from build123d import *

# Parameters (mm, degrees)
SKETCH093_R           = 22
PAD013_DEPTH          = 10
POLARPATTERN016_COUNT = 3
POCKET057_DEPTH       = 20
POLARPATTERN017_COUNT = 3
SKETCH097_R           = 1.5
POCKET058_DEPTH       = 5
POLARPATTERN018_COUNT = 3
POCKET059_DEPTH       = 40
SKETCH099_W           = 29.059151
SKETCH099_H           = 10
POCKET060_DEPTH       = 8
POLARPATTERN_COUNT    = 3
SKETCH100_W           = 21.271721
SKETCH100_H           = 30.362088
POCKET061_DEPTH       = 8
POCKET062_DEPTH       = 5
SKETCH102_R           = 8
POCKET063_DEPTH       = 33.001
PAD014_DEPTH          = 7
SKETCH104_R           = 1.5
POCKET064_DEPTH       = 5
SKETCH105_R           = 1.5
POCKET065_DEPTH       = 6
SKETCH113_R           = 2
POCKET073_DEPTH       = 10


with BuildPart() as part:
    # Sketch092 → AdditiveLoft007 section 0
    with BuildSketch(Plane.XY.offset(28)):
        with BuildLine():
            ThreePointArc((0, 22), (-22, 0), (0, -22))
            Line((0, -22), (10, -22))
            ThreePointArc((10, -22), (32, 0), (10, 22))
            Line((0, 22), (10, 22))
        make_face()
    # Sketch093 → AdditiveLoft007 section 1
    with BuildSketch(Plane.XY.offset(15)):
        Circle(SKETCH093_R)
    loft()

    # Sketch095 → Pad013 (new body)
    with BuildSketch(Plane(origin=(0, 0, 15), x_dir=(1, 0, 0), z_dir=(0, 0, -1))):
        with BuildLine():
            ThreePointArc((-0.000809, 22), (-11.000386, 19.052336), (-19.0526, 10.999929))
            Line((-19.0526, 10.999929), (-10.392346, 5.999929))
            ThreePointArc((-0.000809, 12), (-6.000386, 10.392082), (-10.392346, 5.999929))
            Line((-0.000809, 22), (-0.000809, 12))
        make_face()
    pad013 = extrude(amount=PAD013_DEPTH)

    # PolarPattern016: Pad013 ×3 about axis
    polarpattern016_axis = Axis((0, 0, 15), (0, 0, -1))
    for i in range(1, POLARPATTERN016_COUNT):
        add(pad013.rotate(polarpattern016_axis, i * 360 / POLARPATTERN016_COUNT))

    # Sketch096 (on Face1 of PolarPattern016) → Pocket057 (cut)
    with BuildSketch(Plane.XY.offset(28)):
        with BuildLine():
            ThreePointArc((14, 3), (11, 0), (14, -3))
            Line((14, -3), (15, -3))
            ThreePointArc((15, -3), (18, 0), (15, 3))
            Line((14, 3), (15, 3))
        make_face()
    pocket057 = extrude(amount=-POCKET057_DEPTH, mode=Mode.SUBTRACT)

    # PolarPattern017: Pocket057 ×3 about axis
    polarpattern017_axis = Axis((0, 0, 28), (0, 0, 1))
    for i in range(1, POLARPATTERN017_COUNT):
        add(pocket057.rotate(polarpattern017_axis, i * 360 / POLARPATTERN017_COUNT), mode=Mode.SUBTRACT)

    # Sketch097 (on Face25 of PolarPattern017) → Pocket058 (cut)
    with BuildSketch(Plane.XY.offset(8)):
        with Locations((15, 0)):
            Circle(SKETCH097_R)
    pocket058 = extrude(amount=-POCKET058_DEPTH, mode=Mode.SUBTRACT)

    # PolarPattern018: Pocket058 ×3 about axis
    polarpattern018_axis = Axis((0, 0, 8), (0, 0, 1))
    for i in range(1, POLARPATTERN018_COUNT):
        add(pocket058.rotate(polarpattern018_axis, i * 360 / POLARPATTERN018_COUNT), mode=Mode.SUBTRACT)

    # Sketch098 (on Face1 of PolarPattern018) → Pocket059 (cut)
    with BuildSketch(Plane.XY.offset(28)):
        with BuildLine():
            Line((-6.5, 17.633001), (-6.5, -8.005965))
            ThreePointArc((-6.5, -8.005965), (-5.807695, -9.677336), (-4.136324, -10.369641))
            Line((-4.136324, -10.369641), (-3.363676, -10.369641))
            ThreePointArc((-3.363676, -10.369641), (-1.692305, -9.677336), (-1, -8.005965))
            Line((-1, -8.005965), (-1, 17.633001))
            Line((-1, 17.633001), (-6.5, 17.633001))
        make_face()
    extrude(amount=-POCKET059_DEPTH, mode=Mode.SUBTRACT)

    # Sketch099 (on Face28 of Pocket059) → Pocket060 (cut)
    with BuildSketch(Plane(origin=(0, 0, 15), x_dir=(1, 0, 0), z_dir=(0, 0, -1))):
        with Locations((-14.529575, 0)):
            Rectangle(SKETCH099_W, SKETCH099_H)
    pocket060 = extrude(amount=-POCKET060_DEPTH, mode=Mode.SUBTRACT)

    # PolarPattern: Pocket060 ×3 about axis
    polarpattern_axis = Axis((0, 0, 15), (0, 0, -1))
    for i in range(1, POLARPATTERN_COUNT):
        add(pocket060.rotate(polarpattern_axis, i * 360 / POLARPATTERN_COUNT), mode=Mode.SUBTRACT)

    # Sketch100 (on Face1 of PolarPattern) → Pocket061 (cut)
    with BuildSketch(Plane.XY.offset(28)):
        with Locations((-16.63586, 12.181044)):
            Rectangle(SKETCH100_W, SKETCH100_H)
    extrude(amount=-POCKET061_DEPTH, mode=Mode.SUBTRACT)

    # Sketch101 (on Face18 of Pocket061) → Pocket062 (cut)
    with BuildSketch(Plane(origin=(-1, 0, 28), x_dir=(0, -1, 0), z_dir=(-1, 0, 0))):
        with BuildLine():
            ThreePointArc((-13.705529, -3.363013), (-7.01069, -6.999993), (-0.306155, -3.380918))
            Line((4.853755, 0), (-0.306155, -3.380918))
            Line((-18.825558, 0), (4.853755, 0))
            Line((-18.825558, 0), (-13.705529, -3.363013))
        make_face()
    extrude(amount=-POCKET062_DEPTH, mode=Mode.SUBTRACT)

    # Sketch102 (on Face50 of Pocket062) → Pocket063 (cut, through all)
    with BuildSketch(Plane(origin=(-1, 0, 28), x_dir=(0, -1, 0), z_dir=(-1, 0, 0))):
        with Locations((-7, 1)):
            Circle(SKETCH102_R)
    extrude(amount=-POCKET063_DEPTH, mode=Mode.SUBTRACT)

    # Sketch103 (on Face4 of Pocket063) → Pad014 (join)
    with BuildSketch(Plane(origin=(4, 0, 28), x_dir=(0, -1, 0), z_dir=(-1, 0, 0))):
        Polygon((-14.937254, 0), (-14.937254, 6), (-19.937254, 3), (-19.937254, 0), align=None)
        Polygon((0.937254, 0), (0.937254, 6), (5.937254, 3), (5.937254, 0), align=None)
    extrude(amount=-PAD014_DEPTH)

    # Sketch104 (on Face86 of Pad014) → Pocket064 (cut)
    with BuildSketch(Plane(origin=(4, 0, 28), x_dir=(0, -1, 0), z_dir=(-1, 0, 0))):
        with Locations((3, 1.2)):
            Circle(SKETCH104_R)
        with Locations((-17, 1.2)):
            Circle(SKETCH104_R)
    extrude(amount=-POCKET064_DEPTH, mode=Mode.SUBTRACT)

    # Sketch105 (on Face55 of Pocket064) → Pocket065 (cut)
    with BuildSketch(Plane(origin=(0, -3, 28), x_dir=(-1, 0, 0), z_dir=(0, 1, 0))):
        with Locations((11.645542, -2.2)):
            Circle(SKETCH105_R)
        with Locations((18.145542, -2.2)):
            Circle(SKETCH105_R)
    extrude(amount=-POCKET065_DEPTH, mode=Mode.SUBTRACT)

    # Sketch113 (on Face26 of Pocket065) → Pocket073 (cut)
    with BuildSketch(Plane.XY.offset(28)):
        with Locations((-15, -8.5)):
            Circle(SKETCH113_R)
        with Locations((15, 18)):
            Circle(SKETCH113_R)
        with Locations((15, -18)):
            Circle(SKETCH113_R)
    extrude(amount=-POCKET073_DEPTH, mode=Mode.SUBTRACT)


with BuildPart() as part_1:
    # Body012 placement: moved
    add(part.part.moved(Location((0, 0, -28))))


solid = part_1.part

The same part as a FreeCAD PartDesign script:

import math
import FreeCAD as App
import Part
import Sketcher

V = App.Vector
Q = App.Units.Quantity


def add_polygon(sketch, points):
    """Adds a closed chain of lines whose ends are joined by coincident constraints."""
    first, n = sketch.GeometryCount, len(points)
    for a, b in zip(points, points[1:] + points[:1]):
        sketch.addGeometry(Part.LineSegment(App.Vector(*a, 0), App.Vector(*b, 0)), False)
    for i in range(n):
        sketch.addConstraint(Sketcher.Constraint("Coincident", first + i, 2, first + (i + 1) % n, 1))

doc = App.newDocument("Part")
body = doc.addObject("PartDesign::Body", "Body")

# Sketch on XY plane
sketch1 = doc.addObject("Sketcher::SketchObject", "Sketch")
body.addObject(sketch1)
sketch1.AttachmentSupport = (doc.XY_Plane, [""])
sketch1.MapMode = "FlatFace"
sketch1.AttachmentOffset = App.Placement(V(0, 0, 28), App.Rotation())
sketch1.addGeometry([
    Part.ArcOfCircle(Part.Circle(V(0, 0, 0), V(0, 0, 1), 22), math.radians(90), math.radians(270)),
    Part.LineSegment(V(0, -22, 0), V(10, -22, 0)),
    Part.ArcOfCircle(Part.Circle(V(10, 0, 0), V(0, 0, 1), 22), math.radians(-90), math.radians(90)),
    Part.LineSegment(V(10, 22, 0), V(0, 22, 0)),
], False)
sketch1.addConstraint([
    Sketcher.Constraint("Tangent", 0, 2, 1, 1),
    Sketcher.Constraint("Tangent", 1, 2, 2, 1),
    Sketcher.Constraint("Tangent", 2, 2, 3, 1),
    Sketcher.Constraint("Tangent", 3, 2, 0, 1),
    Sketcher.Constraint("Horizontal", 1),
    Sketcher.Constraint("Horizontal", 3),
    Sketcher.Constraint("Coincident", 0, 3, -1, 1),
    Sketcher.Constraint("Radius", 0, Q("22 mm")),
    Sketcher.Constraint("DistanceX", 1, 1, 1, 2, Q("10 mm")),
])

# Sketch on XY plane
sketch2 = doc.addObject("Sketcher::SketchObject", "Sketch001")
body.addObject(sketch2)
sketch2.AttachmentSupport = (doc.XY_Plane, [""])
sketch2.MapMode = "FlatFace"
sketch2.AttachmentOffset = App.Placement(V(0, 0, 15), App.Rotation())
sketch2.addGeometry(Part.Circle(V(0, 0, 0), V(0, 0, 1), 22), False)
sketch2.addConstraint([
    Sketcher.Constraint("Coincident", 0, 3, -1, 1),
    Sketcher.Constraint("Diameter", 0, Q("44 mm")),
])

additiveloft = doc.addObject("PartDesign::AdditiveLoft", "AdditiveLoft")
body.addObject(additiveloft)
additiveloft.Profile = sketch1
additiveloft.Sections = [sketch2]

# Sketch on XY plane
sketch3 = doc.addObject("Sketcher::SketchObject", "Sketch002")
body.addObject(sketch3)
sketch3.AttachmentSupport = (doc.XY_Plane, [""])
sketch3.MapMode = "FlatFace"
sketch3.AttachmentOffset = App.Placement(V(0, 0, 15), App.Rotation())
sketch3.addGeometry([
    Part.ArcOfCircle(Part.Circle(V(0, 0, 0), V(0, 0, 1), 22), math.radians(-150), math.radians(-90)),
    Part.LineSegment(V(-19, -11, 0), V(-10, -6, 0)),
    Part.ArcOfCircle(Part.Circle(V(0, 0, 0), V(0, 0, 1), 12), math.radians(-150), math.radians(-90)),
    Part.LineSegment(V(0, -12, 0), V(0, -22, 0)),
], False)
sketch3.addConstraint([
    Sketcher.Constraint("Coincident", 0, 1, 1, 1),
    Sketcher.Constraint("Coincident", 1, 2, 2, 1),
    Sketcher.Constraint("Coincident", 2, 2, 3, 1),
    Sketcher.Constraint("Coincident", 3, 2, 0, 2),
    Sketcher.Constraint("Vertical", 3),
    Sketcher.Constraint("Coincident", 0, 3, -1, 1),
    Sketcher.Constraint("Coincident", 2, 3, -1, 1),
    Sketcher.Constraint("Radius", 0, Q("22.000001 mm")),
    Sketcher.Constraint("Radius", 2, Q("12.000001 mm")),
    Sketcher.Constraint("Angle", 1, Q("30 deg")),
    Sketcher.Constraint("DistanceX", 0, 1, -1, 1, Q("19.0526 mm")),
    Sketcher.Constraint("DistanceX", 2, 2, -1, 1, Q("0.000809 mm")),
])
pad1 = doc.addObject("PartDesign::Pad", "Pad")
body.addObject(pad1)
pad1.Profile = sketch3
pad1.Length = 10
pad1.Reversed = True
doc.recompute()

polarpattern = doc.addObject("PartDesign::PolarPattern", "PolarPattern")
body.addObject(polarpattern)
polarpattern.Originals = [pad1]
polarpattern.Axis = (doc.Z_Axis, [""])
polarpattern.Angle = 360
polarpattern.Occurrences = 3
body.Tip = polarpattern

# Sketch on XY plane
sketch4 = doc.addObject("Sketcher::SketchObject", "Sketch003")
body.addObject(sketch4)
sketch4.AttachmentSupport = (doc.XY_Plane, [""])
sketch4.MapMode = "FlatFace"
sketch4.AttachmentOffset = App.Placement(V(0, 0, 28), App.Rotation())
sketch4.addGeometry([
    Part.ArcOfCircle(Part.Circle(V(14, 0, 0), V(0, 0, 1), 3), math.radians(90), math.radians(270)),
    Part.LineSegment(V(14, -3, 0), V(15, -3, 0)),
    Part.ArcOfCircle(Part.Circle(V(15, 0, 0), V(0, 0, 1), 3), math.radians(-90), math.radians(90)),
    Part.LineSegment(V(15, 3, 0), V(14, 3, 0)),
], False)
sketch4.addConstraint([
    Sketcher.Constraint("Tangent", 0, 2, 1, 1),
    Sketcher.Constraint("Tangent", 1, 2, 2, 1),
    Sketcher.Constraint("Tangent", 2, 2, 3, 1),
    Sketcher.Constraint("Tangent", 3, 2, 0, 1),
    Sketcher.Constraint("Horizontal", 1),
    Sketcher.Constraint("Horizontal", 3),
    Sketcher.Constraint("PointOnObject", 0, 3, -1),
    Sketcher.Constraint("Radius", 0, Q("3 mm")),
    Sketcher.Constraint("DistanceX", 1, 1, 1, 2, Q("1 mm")),
    Sketcher.Constraint("DistanceX", -1, 1, 0, 3, Q("14 mm")),
])
pocket1 = doc.addObject("PartDesign::Pocket", "Pocket")
body.addObject(pocket1)
pocket1.Profile = sketch4
pocket1.Length = 20
doc.recompute()

polarpattern2 = doc.addObject("PartDesign::PolarPattern", "PolarPattern001")
body.addObject(polarpattern2)
polarpattern2.Originals = [pocket1]
polarpattern2.Axis = (doc.Z_Axis, [""])
polarpattern2.Angle = 360
polarpattern2.Occurrences = 3
body.Tip = polarpattern2

# Sketch on XY plane
sketch5 = doc.addObject("Sketcher::SketchObject", "Sketch004")
body.addObject(sketch5)
sketch5.AttachmentSupport = (doc.XY_Plane, [""])
sketch5.MapMode = "FlatFace"
sketch5.AttachmentOffset = App.Placement(V(0, 0, 8), App.Rotation())
sketch5.addGeometry(Part.Circle(V(15, 0, 0), V(0, 0, 1), 1.5), False)
sketch5.addConstraint([
    Sketcher.Constraint("PointOnObject", 0, 3, -1),
    Sketcher.Constraint("Diameter", 0, Q("3 mm")),
    Sketcher.Constraint("DistanceX", -1, 1, 0, 3, Q("15 mm")),
])
pocket2 = doc.addObject("PartDesign::Pocket", "Pocket001")
body.addObject(pocket2)
pocket2.Profile = sketch5
pocket2.Length = 5
doc.recompute()

polarpattern3 = doc.addObject("PartDesign::PolarPattern", "PolarPattern002")
body.addObject(polarpattern3)
polarpattern3.Originals = [pocket2]
polarpattern3.Axis = (doc.Z_Axis, [""])
polarpattern3.Angle = 360
polarpattern3.Occurrences = 3
body.Tip = polarpattern3

# Sketch on XY plane
sketch6 = doc.addObject("Sketcher::SketchObject", "Sketch005")
body.addObject(sketch6)
sketch6.AttachmentSupport = (doc.XY_Plane, [""])
sketch6.MapMode = "FlatFace"
sketch6.AttachmentOffset = App.Placement(V(0, 0, 28), App.Rotation())
sketch6.addGeometry([
    Part.LineSegment(V(-6.5, 17.6, 0), V(-6.5, -8, 0)),  # 0
    Part.ArcOfCircle(Part.Circle(V(-4.1, -8, 0), V(0, 0, 1), 2.4), math.radians(-180), math.radians(-90)),  # 1
    Part.LineSegment(V(-4.1, -10.4, 0), V(-3.4, -10.4, 0)),  # 2
    Part.ArcOfCircle(Part.Circle(V(-3.4, -8, 0), V(0, 0, 1), 2.4), math.radians(-90), math.radians(0)),  # 3
    Part.LineSegment(V(-1, -8, 0), V(-1, 17.6, 0)),  # 4
    Part.LineSegment(V(-1, 17.6, 0), V(-6.5, 17.6, 0)),  # 5
], False)
sketch6.addConstraint([
    Sketcher.Constraint("Tangent", 0, 2, 1, 1),
    Sketcher.Constraint("Tangent", 1, 2, 2, 1),
    Sketcher.Constraint("Tangent", 2, 2, 3, 1),
    Sketcher.Constraint("Tangent", 3, 2, 4, 1),
    Sketcher.Constraint("Coincident", 4, 2, 5, 1),
    Sketcher.Constraint("Coincident", 5, 2, 0, 1),
    Sketcher.Constraint("Vertical", 0),
    Sketcher.Constraint("Horizontal", 2),
    Sketcher.Constraint("Vertical", 4),
    Sketcher.Constraint("Horizontal", 5),
    Sketcher.Constraint("Equal", 1, 3),
    Sketcher.Constraint("DistanceX", 5, 2, 5, 1, Q("5.5 mm")),
    Sketcher.Constraint("DistanceX", 3, 2, -1, 1, Q("1 mm")),
    Sketcher.Constraint("DistanceY", -1, 1, 4, 2, Q("17.633001 mm")),
    Sketcher.Constraint("Radius", 1, Q("2.363677 mm")),
    Sketcher.Constraint("DistanceY", 0, 2, 0, 1, Q("25.638966 mm")),
])
pocket3 = doc.addObject("PartDesign::Pocket", "Pocket002")
body.addObject(pocket3)
pocket3.Profile = sketch6
pocket3.Length = 40

# Sketch on XY plane
sketch7 = doc.addObject("Sketcher::SketchObject", "Sketch006")
body.addObject(sketch7)
sketch7.AttachmentSupport = (doc.XY_Plane, [""])
sketch7.MapMode = "FlatFace"
sketch7.AttachmentOffset = App.Placement(V(0, 0, 15), App.Rotation())
add_polygon(sketch7, [(-29, -5), (-29, 5), (0, 5), (0, -5)])  # lines 0-3
sketch7.addConstraint([
    Sketcher.Constraint("Vertical", 0),
    Sketcher.Constraint("Horizontal", 1),
    Sketcher.Constraint("Vertical", 2),
    Sketcher.Constraint("Horizontal", 3),
    Sketcher.Constraint("Symmetric", 1, 2, 2, 2, -1, 1),
    Sketcher.Constraint("DistanceY", 0, 1, 0, 2, Q("10 mm")),
    Sketcher.Constraint("DistanceX", 1, 1, 1, 2, Q("29.059151 mm")),
])
pocket4 = doc.addObject("PartDesign::Pocket", "Pocket003")
body.addObject(pocket4)
pocket4.Profile = sketch7
pocket4.Length = 8
pocket4.Reversed = True
doc.recompute()

polarpattern4 = doc.addObject("PartDesign::PolarPattern", "PolarPattern003")
body.addObject(polarpattern4)
polarpattern4.Originals = [pocket4]
polarpattern4.Axis = (doc.Z_Axis, [""])
polarpattern4.Angle = 360
polarpattern4.Occurrences = 3
body.Tip = polarpattern4

# Sketch on XY plane
sketch8 = doc.addObject("Sketcher::SketchObject", "Sketch007")
body.addObject(sketch8)
sketch8.AttachmentSupport = (doc.XY_Plane, [""])
sketch8.MapMode = "FlatFace"
sketch8.AttachmentOffset = App.Placement(V(0, 0, 28), App.Rotation())
add_polygon(sketch8, [(-27, 27), (-27, -3), (-6, -3), (-6, 27)])  # lines 0-3
sketch8.addConstraint([
    Sketcher.Constraint("Vertical", 0),
    Sketcher.Constraint("Horizontal", 1),
    Sketcher.Constraint("Vertical", 2),
    Sketcher.Constraint("Horizontal", 3),
    Sketcher.Constraint("DistanceY", 0, 2, -1, 1, Q("3 mm")),
    Sketcher.Constraint("DistanceX", 1, 2, -1, 1, Q("6 mm")),
    Sketcher.Constraint("DistanceX", 1, 1, 1, 2, Q("21.271721 mm")),
    Sketcher.Constraint("DistanceY", 0, 2, 0, 1, Q("30.362088 mm")),
])
pocket5 = doc.addObject("PartDesign::Pocket", "Pocket004")
body.addObject(pocket5)
pocket5.Profile = sketch8
pocket5.Length = 8

# Sketch on YZ plane
sketch9 = doc.addObject("Sketcher::SketchObject", "Sketch008")
body.addObject(sketch9)
sketch9.AttachmentSupport = (doc.YZ_Plane, [""])
sketch9.MapMode = "FlatFace"
sketch9.AttachmentOffset = App.Placement(V(0, 0, -1), App.Rotation())
sketch9.addGeometry([
    Part.ArcOfCircle(Part.Circle(V(7, 29, 0), V(0, 0, 1), 8), math.radians(-147), math.radians(-33)),
    Part.LineSegment(V(0, 25, 0), V(-5, 28, 0)),
    Part.LineSegment(V(-5, 28, 0), V(19, 28, 0)),
    Part.LineSegment(V(19, 28, 0), V(14, 25, 0)),
], False)
sketch9.addConstraint([
    Sketcher.Constraint("Coincident", 0, 1, 1, 1),
    Sketcher.Constraint("Coincident", 1, 2, 2, 1),
    Sketcher.Constraint("Coincident", 2, 2, 3, 1),
    Sketcher.Constraint("Coincident", 3, 2, 0, 2),
    Sketcher.Constraint("Horizontal", 2),
    Sketcher.Constraint("Radius", 0, Q("8 mm")),
    Sketcher.Constraint("DistanceX", -1, 1, 0, 3, Q("7 mm")),
    Sketcher.Constraint("DistanceY", -1, 1, 0, 3, Q("29 mm")),
    Sketcher.Constraint("DistanceY", -1, 1, 1, 2, Q("28 mm")),
    Sketcher.Constraint("Distance", 3, Q("6.125729 mm")),
    Sketcher.Constraint("DistanceX", 2, 1, 2, 2, Q("23.679313 mm")),
    Sketcher.Constraint("DistanceX", -1, 1, 2, 2, Q("18.825558 mm")),
    Sketcher.Constraint("DistanceY", 0, 1, 0, 3, Q("4.380918 mm")),
])
pocket6 = doc.addObject("PartDesign::Pocket", "Pocket005")
body.addObject(pocket6)
pocket6.Profile = sketch9
pocket6.Length = 5
pocket6.Reversed = True

# Sketch on YZ plane
sketch10 = doc.addObject("Sketcher::SketchObject", "Sketch009")
body.addObject(sketch10)
sketch10.AttachmentSupport = (doc.YZ_Plane, [""])
sketch10.MapMode = "FlatFace"
sketch10.AttachmentOffset = App.Placement(V(0, 0, -1), App.Rotation())
sketch10.addGeometry(Part.Circle(V(7, 29, 0), V(0, 0, 1), 8), False)
sketch10.addConstraint([
    Sketcher.Constraint("Diameter", 0, Q("16 mm")),
    Sketcher.Constraint("DistanceX", -1, 1, 0, 3, Q("7 mm")),
    Sketcher.Constraint("DistanceY", -1, 1, 0, 3, Q("29 mm")),
])
pocket7 = doc.addObject("PartDesign::Pocket", "Pocket006")
body.addObject(pocket7)
pocket7.Profile = sketch10
pocket7.Type = "ThroughAll"
pocket7.Reversed = True

# Sketch on YZ plane
sketch11 = doc.addObject("Sketcher::SketchObject", "Sketch010")
body.addObject(sketch11)
sketch11.AttachmentSupport = (doc.YZ_Plane, [""])
sketch11.MapMode = "FlatFace"
sketch11.AttachmentOffset = App.Placement(V(0, 0, 4), App.Rotation())
add_polygon(sketch11, [(14.9, 28), (14.9, 34), (19.9, 31), (19.9, 28)])  # lines 0-3
add_polygon(sketch11, [(-0.9, 34), (-0.9, 28), (-5.9, 28), (-5.9, 31)])  # lines 4-7
sketch11.addConstraint([
    Sketcher.Constraint("Vertical", 0),
    Sketcher.Constraint("Vertical", 2),
    Sketcher.Constraint("Horizontal", 3),
    Sketcher.Constraint("Vertical", 4),
    Sketcher.Constraint("Horizontal", 5),
    Sketcher.Constraint("Vertical", 6),
    Sketcher.Constraint("Horizontal", 3, 2, 4, 2),
    Sketcher.Constraint("Horizontal", 1, 2, 6, 2),
    Sketcher.Constraint("Horizontal", 0, 2, 7, 2),
    Sketcher.Constraint("Equal", 3, 5),
    Sketcher.Constraint("DistanceX", 3, 2, 3, 1, Q("5 mm")),
    Sketcher.Constraint("DistanceY", 0, 1, 0, 2, Q("6 mm")),
    Sketcher.Constraint("DistanceY", 2, 2, 2, 1, Q("3 mm")),
    Sketcher.Constraint("DistanceY", -1, 1, 0, 2, Q("34 mm")),
    Sketcher.Constraint("DistanceX", -1, 1, 0, 2, Q("14.937254 mm")),
    Sketcher.Constraint("DistanceX", 4, 2, -1, 1, Q("0.937254 mm")),
])
pad2 = doc.addObject("PartDesign::Pad", "Pad001")
body.addObject(pad2)
pad2.Profile = sketch11
pad2.Length = 7

# Sketch on YZ plane
sketch12 = doc.addObject("Sketcher::SketchObject", "Sketch011")
body.addObject(sketch12)
sketch12.AttachmentSupport = (doc.YZ_Plane, [""])
sketch12.MapMode = "FlatFace"
sketch12.AttachmentOffset = App.Placement(V(0, 0, 4), App.Rotation())
sketch12.addGeometry([
    Part.Circle(V(-3, 29.2, 0), V(0, 0, 1), 1.5),
    Part.Circle(V(17, 29.2, 0), V(0, 0, 1), 1.5),
], False)
sketch12.addConstraint([
    Sketcher.Constraint("Equal", 0, 1),
    Sketcher.Constraint("Horizontal", 0, 3, 1, 3),
    Sketcher.Constraint("Diameter", 0, Q("3 mm")),
    Sketcher.Constraint("DistanceX", 0, 3, -1, 1, Q("3 mm")),
    Sketcher.Constraint("DistanceX", -1, 1, 1, 3, Q("17 mm")),
    Sketcher.Constraint("DistanceY", -1, 1, 0, 3, Q("29.2 mm")),
])
pocket8 = doc.addObject("PartDesign::Pocket", "Pocket007")
body.addObject(pocket8)
pocket8.Profile = sketch12
pocket8.Length = 5
pocket8.Reversed = True

# Sketch on XZ plane
sketch13 = doc.addObject("Sketcher::SketchObject", "Sketch012")
body.addObject(sketch13)
sketch13.AttachmentSupport = (doc.XZ_Plane, [""])
sketch13.MapMode = "FlatFace"
sketch13.AttachmentOffset = App.Placement(V(0, 0, 3), App.Rotation())
sketch13.addGeometry([
    Part.Circle(V(-11.6, 25.8, 0), V(0, 0, 1), 1.5),
    Part.Circle(V(-18.1, 25.8, 0), V(0, 0, 1), 1.5),
], False)
sketch13.addConstraint([
    Sketcher.Constraint("Equal", 0, 1),
    Sketcher.Constraint("Horizontal", 0, 3, 1, 3),
    Sketcher.Constraint("Diameter", 0, Q("3 mm")),
    Sketcher.Constraint("DistanceY", -1, 1, 0, 3, Q("25.8 mm")),
    Sketcher.Constraint("DistanceX", 1, 3, 0, 3, Q("6.5 mm")),
    Sketcher.Constraint("DistanceX", 1, 3, -1, 1, Q("18.145542 mm")),
])
pocket9 = doc.addObject("PartDesign::Pocket", "Pocket008")
body.addObject(pocket9)
pocket9.Profile = sketch13
pocket9.Length = 6
pocket9.Reversed = True

# Sketch on XY plane
sketch14 = doc.addObject("Sketcher::SketchObject", "Sketch013")
body.addObject(sketch14)
sketch14.AttachmentSupport = (doc.XY_Plane, [""])
sketch14.MapMode = "FlatFace"
sketch14.AttachmentOffset = App.Placement(V(0, 0, 28), App.Rotation())
sketch14.addGeometry([
    Part.Circle(V(-15, -8.5, 0), V(0, 0, 1), 2),
    Part.Circle(V(15, 18, 0), V(0, 0, 1), 2),
    Part.Circle(V(15, -18, 0), V(0, 0, 1), 2),
], False)
sketch14.addConstraint([
    Sketcher.Constraint("Equal", 0, 1),
    Sketcher.Constraint("Equal", 1, 2),
    Sketcher.Constraint("Symmetric", 1, 3, 2, 3, -1),
    Sketcher.Constraint("Diameter", 0, Q("4 mm")),
    Sketcher.Constraint("DistanceX", 0, 3, -1, 1, Q("15 mm")),
    Sketcher.Constraint("DistanceX", -1, 1, 1, 3, Q("15 mm")),
    Sketcher.Constraint("DistanceY", -1, 1, 1, 3, Q("18 mm")),
    Sketcher.Constraint("DistanceY", 0, 3, -1, 1, Q("8.5 mm")),
])
pocket10 = doc.addObject("PartDesign::Pocket", "Pocket009")
body.addObject(pocket10)
pocket10.Profile = sketch14
pocket10.Length = 10
body2 = doc.addObject("PartDesign::Body", "Body001")
doc.recompute()

body.Placement = App.Placement(V(0, 0, -28), App.Rotation(V(0, 0, 1), 0))
boolean = doc.addObject("PartDesign::Boolean", "Boolean")
body2.addObject(boolean)
boolean.Type = "Fuse"
boolean.addObjects([body])

doc.recompute()
